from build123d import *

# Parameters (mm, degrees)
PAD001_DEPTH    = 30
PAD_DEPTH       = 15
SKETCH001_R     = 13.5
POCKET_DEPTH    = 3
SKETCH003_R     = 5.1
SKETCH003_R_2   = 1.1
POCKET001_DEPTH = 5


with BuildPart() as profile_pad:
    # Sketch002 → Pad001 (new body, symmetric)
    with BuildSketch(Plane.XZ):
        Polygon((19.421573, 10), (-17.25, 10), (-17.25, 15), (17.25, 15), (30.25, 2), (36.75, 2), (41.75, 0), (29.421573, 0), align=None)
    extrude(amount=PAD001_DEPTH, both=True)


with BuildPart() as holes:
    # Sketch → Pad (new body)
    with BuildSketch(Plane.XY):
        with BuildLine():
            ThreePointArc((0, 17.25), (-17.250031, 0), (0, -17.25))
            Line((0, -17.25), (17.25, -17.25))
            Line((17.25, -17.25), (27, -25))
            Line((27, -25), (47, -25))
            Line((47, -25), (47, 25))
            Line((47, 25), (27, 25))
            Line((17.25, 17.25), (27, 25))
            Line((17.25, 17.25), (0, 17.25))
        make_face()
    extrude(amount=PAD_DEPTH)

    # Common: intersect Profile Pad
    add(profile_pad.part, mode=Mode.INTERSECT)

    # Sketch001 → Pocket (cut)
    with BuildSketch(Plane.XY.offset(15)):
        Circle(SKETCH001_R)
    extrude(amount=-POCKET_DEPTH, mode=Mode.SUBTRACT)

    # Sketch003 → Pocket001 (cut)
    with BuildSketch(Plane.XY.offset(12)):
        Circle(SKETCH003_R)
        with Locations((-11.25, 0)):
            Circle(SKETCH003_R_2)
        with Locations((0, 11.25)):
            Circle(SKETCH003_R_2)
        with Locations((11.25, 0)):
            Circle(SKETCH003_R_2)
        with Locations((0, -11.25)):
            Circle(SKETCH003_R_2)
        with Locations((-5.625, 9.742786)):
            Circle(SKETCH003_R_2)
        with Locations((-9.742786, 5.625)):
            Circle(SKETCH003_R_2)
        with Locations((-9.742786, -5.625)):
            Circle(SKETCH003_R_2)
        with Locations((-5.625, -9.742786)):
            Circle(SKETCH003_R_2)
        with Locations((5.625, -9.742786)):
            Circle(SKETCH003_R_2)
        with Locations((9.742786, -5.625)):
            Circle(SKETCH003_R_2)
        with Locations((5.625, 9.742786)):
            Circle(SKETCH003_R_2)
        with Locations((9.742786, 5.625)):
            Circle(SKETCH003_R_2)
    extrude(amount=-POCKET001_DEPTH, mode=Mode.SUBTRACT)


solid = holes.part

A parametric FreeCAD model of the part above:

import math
import FreeCAD as App
import Part
import Sketcher
from FreeCAD import Vector
Q = App.Units.Quantity

doc = App.newDocument("Part")
body = doc.addObject("PartDesign::Body", "Body")

# Sketch on XZ plane
sketch1 = body.newObject("Sketcher::SketchObject", "Sketch")
sketch1.AttachmentSupport = (doc.getObject("XZ_Plane"), [""])
sketch1.MapMode = "FlatFace"
sketch1.addGeometry([
    Part.LineSegment(Vector(-17, 10, 0), Vector(19, 10, 0)),  # 0
    Part.LineSegment(Vector(19, 10, 0), Vector(29, 0, 0)),  # 1
    Part.LineSegment(Vector(29, 0, 0), Vector(42, 0, 0)),  # 2
    Part.LineSegment(Vector(42, 0, 0), Vector(37, 2, 0)),  # 3
    Part.LineSegment(Vector(37, 2, 0), Vector(30, 2, 0)),  # 4
    Part.LineSegment(Vector(30, 2, 0), Vector(17, 15, 0)),  # 5
    Part.LineSegment(Vector(17, 15, 0), Vector(-17, 15, 0)),  # 6
    Part.LineSegment(Vector(-17, 15, 0), Vector(-17, 10, 0)),  # 7
], False)
sketch1.addConstraint([
    Sketcher.Constraint("Coincident", 0, 2, 1, 1),
    Sketcher.Constraint("Coincident", 1, 2, 2, 1),
    Sketcher.Constraint("Coincident", 2, 2, 3, 1),
    Sketcher.Constraint("Coincident", 3, 2, 4, 1),
    Sketcher.Constraint("Coincident", 4, 2, 5, 1),
    Sketcher.Constraint("Coincident", 5, 2, 6, 1),
    Sketcher.Constraint("Coincident", 6, 2, 7, 1),
    Sketcher.Constraint("Coincident", 7, 2, 0, 1),
    Sketcher.Constraint("Horizontal", 0),
    Sketcher.Constraint("Horizontal", 2),
    Sketcher.Constraint("Horizontal", 4),
    Sketcher.Constraint("Horizontal", 6),
    Sketcher.Constraint("Vertical", 7),
    Sketcher.Constraint("PointOnObject", 1, 2, -1),
    Sketcher.Constraint("Parallel", 1, 5),
    Sketcher.Constraint("DistanceY", 7, 2, 7, 1, Q("5 mm")),
    Sketcher.Constraint("Angle", 1, Q("-45 deg")),
    Sketcher.Constraint("DistanceX", 4, 2, 4, 1, Q("6.5 mm")),
    Sketcher.Constraint("DistanceX", 6, 2, 6, 1, Q("34.5 mm")),
    Sketcher.Constraint("DistanceY", -1, 1, 0, 2, Q("10 mm")),
    Sketcher.Constraint("DistanceY", -1, 1, 3, 2, Q("2 mm")),
    Sketcher.Constraint("DistanceX", 3, 2, 2, 2, Q("5 mm")),
    Sketcher.Constraint("DistanceX", -1, 1, 2, 2, Q("41.75 mm")),
    Sketcher.Constraint("DistanceX", 0, 1, 0, 2, Q("36.671573 mm")),
])
pad1 = body.newObject("PartDesign::Pad", "Pad")
pad1.Profile = sketch1
pad1.Length = 60
pad1.Midplane = True
body2 = doc.addObject("PartDesign::Body", "Body001")

# Sketch on XY plane
sketch2 = body2.newObject("Sketcher::SketchObject", "Sketch001")
sketch2.AttachmentSupport = (doc.getObject("XY_Plane001"), [""])
sketch2.MapMode = "FlatFace"
sketch2.addGeometry([
    Part.ArcOfCircle(Part.Circle(Vector(-0.000031, 0, 0), Vector(0, 0, 1), 17.25), math.radians(89.999897), math.radians(270.000103)),  # 0
    Part.LineSegment(Vector(0, -17.25, 0), Vector(17.25, -17.25, 0)),  # 1
    Part.LineSegment(Vector(17.25, -17.25, 0), Vector(27, -25, 0)),  # 2
    Part.LineSegment(Vector(27, -25, 0), Vector(47, -25, 0)),  # 3
    Part.LineSegment(Vector(47, -25, 0), Vector(47, 25, 0)),  # 4
    Part.LineSegment(Vector(47, 25, 0), Vector(27, 25, 0)),  # 5
    Part.LineSegment(Vector(27, 25, 0), Vector(17.25, 17.25, 0)),  # 6
    Part.LineSegment(Vector(17.25, 17.25, 0), Vector(0, 17.25, 0)),  # 7
], False)
sketch2.addConstraint([
    Sketcher.Constraint("Coincident", 0, 2, 1, 1),
    Sketcher.Constraint("Coincident", 1, 2, 2, 1),
    Sketcher.Constraint("Coincident", 2, 2, 3, 1),
    Sketcher.Constraint("Coincident", 3, 2, 4, 1),
    Sketcher.Constraint("Coincident", 4, 2, 5, 1),
    Sketcher.Constraint("Coincident", 5, 2, 6, 1),
    Sketcher.Constraint("Coincident", 6, 2, 7, 1),
    Sketcher.Constraint("Coincident", 7, 2, 0, 1),
    Sketcher.Constraint("Horizontal", 1),
    Sketcher.Constraint("Horizontal", 3),
    Sketcher.Constraint("Vertical", 4),
    Sketcher.Constraint("Horizontal", 5),
    Sketcher.Constraint("Horizontal", 7),
    Sketcher.Constraint("PointOnObject", 0, 3, -1),
    Sketcher.Constraint("PointOnObject", 0, 2, -2),
    Sketcher.Constraint("PointOnObject", 7, 2, -2),
    Sketcher.Constraint("DistanceX", 3, 1, 3, 2, Q("20 mm")),
    Sketcher.Constraint("DistanceX", 5, 2, 5, 1, Q("20 mm")),
    Sketcher.Constraint("DistanceY", 4, 1, 4, 2, Q("50 mm")),
    Sketcher.Constraint("Radius", 0, Q("17.25 mm")),
    Sketcher.Constraint("DistanceX", -1, 1, 2, 2, Q("27 mm")),
    Sketcher.Constraint("DistanceY", 2, 2, -1, 1, Q("25 mm")),
    Sketcher.Constraint("DistanceX", 1, 1, 1, 2, Q("17.25 mm")),
    Sketcher.Constraint("DistanceX", 7, 2, 7, 1, Q("17.25 mm")),
    Sketcher.Constraint("DistanceX", 0, 3, 1, 2, Q("17.250031 mm")),
])
pad2 = body2.newObject("PartDesign::Pad", "Pad001")
pad2.Profile = sketch2
pad2.Length = 15
doc.recompute()

boolean = body2.newObject("PartDesign::Boolean", "Boolean")
boolean.Type = "Common"
boolean.addObjects([body])

# Sketch on XY plane
sketch3 = body2.newObject("Sketcher::SketchObject", "Sketch002")
sketch3.AttachmentSupport = (doc.getObject("XY_Plane001"), [""])
sketch3.MapMode = "FlatFace"
sketch3.AttachmentOffset = App.Placement(Vector(0, 0, 15), App.Rotation())
sketch3.addGeometry(Part.Circle(Vector(0, 0, 0), Vector(0, 0, 1), 14), False)
sketch3.addConstraint([
    Sketcher.Constraint("Coincident", 0, 3, -1, 1),
    Sketcher.Constraint("Diameter", 0, Q("27 mm")),
])
pocket1 = body2.newObject("PartDesign::Pocket", "Pocket")
pocket1.Profile = sketch3
pocket1.Length = 3

# Sketch on XY plane
sketch4 = body2.newObject("Sketcher::SketchObject", "Sketch003")
sketch4.AttachmentSupport = (doc.getObject("XY_Plane001"), [""])
sketch4.MapMode = "FlatFace"
sketch4.AttachmentOffset = App.Placement(Vector(0, 0, 12), App.Rotation())
sketch4.addGeometry([
    Part.Circle(Vector(0, 0, 0), Vector(0, 0, 1), 5.1),  # 0
    Part.Circle(Vector(-11.2, 0, 0), Vector(0, 0, 1), 1.1),  # 1
    Part.Circle(Vector(0, 11.2, 0), Vector(0, 0, 1), 1.1),  # 2
    Part.Circle(Vector(11.2, 0, 0), Vector(0, 0, 1), 1.1),  # 3
    Part.Circle(Vector(0, -11.2, 0), Vector(0, 0, 1), 1.1),  # 4
    Part.Circle(Vector(-5.6, 9.7, 0), Vector(0, 0, 1), 1.1),  # 5
    Part.Circle(Vector(-9.7, 5.6, 0), Vector(0, 0, 1), 1.1),  # 6
    Part.Circle(Vector(-9.7, -5.6, 0), Vector(0, 0, 1), 1.1),  # 7
    Part.Circle(Vector(-5.6, -9.7, 0), Vector(0, 0, 1), 1.1),  # 8
    Part.Circle(Vector(5.6, -9.7, 0), Vector(0, 0, 1), 1.1),  # 9
    Part.Circle(Vector(9.7, -5.6, 0), Vector(0, 0, 1), 1.1),  # 10
    Part.Circle(Vector(5.6, 9.7, 0), Vector(0, 0, 1), 1.1),  # 11
    Part.Circle(Vector(9.7, 5.6, 0), Vector(0, 0, 1), 1.1),  # 12
], False)
sketch4.addConstraint([
    Sketcher.Constraint("Coincident", 0, 3, -1, 1),
    Sketcher.Constraint("Equal", 1, 2),
    Sketcher.Constraint("Equal", 2, 3),
    Sketcher.Constraint("Equal", 3, 4),
    Sketcher.Constraint("Equal", 4, 5),
    Sketcher.Constraint("Equal", 5, 6),
    Sketcher.Constraint("Equal", 6, 7),
    Sketcher.Constraint("Equal", 7, 8),
    Sketcher.Constraint("Equal", 8, 9),
    Sketcher.Constraint("Equal", 9, 10),
    Sketcher.Constraint("Equal", 10, 11),
    Sketcher.Constraint("Equal", 11, 12),
    Sketcher.Constraint("Symmetric", 1, 3, 3, 3, -1, 1),
    Sketcher.Constraint("Symmetric", 2, 3, 4, 3, -1, 1),
    Sketcher.Constraint("Symmetric", 5, 3, 9, 3, -1, 1),
    Sketcher.Constraint("Symmetric", 6, 3, 10, 3, -1, 1),
    Sketcher.Constraint("Symmetric", 8, 3, 11, 3, -1, 1),
    Sketcher.Constraint("Symmetric", 7, 3, 12, 3, -1, 1),
    Sketcher.Constraint("Symmetric", 8, 3, 9, 3, -2),
    Sketcher.Constraint("Symmetric", 7, 3, 10, 3, -2),
    Sketcher.Constraint("PointOnObject", 1, 3, -1),
    Sketcher.Constraint("PointOnObject", 2, 3, -2),
    Sketcher.Constraint("Diameter", 0, Q("10.2 mm")),
    Sketcher.Constraint("Diameter", 1, Q("2.2 mm")),
    Sketcher.Constraint("DistanceX", 1, 3, 3, 3, Q("22.5 mm")),
    Sketcher.Constraint("DistanceY", 4, 3, 2, 3, Q("22.5 mm")),
    Sketcher.Constraint("DistanceY", 7, 3, 6, 3, Q("11.25 mm")),
    Sketcher.Constraint("DistanceX", 8, 3, 9, 3, Q("11.25 mm")),
    Sketcher.Constraint("DistanceY", -1, 1, 5, 3, Q("9.742786 mm")),
    Sketcher.Constraint("DistanceX", 6, 3, -1, 1, Q("9.742786 mm")),
])
pocket2 = body2.newObject("PartDesign::Pocket", "Pocket001")
pocket2.Profile = sketch4
pocket2.Length = 5

doc.recompute()
